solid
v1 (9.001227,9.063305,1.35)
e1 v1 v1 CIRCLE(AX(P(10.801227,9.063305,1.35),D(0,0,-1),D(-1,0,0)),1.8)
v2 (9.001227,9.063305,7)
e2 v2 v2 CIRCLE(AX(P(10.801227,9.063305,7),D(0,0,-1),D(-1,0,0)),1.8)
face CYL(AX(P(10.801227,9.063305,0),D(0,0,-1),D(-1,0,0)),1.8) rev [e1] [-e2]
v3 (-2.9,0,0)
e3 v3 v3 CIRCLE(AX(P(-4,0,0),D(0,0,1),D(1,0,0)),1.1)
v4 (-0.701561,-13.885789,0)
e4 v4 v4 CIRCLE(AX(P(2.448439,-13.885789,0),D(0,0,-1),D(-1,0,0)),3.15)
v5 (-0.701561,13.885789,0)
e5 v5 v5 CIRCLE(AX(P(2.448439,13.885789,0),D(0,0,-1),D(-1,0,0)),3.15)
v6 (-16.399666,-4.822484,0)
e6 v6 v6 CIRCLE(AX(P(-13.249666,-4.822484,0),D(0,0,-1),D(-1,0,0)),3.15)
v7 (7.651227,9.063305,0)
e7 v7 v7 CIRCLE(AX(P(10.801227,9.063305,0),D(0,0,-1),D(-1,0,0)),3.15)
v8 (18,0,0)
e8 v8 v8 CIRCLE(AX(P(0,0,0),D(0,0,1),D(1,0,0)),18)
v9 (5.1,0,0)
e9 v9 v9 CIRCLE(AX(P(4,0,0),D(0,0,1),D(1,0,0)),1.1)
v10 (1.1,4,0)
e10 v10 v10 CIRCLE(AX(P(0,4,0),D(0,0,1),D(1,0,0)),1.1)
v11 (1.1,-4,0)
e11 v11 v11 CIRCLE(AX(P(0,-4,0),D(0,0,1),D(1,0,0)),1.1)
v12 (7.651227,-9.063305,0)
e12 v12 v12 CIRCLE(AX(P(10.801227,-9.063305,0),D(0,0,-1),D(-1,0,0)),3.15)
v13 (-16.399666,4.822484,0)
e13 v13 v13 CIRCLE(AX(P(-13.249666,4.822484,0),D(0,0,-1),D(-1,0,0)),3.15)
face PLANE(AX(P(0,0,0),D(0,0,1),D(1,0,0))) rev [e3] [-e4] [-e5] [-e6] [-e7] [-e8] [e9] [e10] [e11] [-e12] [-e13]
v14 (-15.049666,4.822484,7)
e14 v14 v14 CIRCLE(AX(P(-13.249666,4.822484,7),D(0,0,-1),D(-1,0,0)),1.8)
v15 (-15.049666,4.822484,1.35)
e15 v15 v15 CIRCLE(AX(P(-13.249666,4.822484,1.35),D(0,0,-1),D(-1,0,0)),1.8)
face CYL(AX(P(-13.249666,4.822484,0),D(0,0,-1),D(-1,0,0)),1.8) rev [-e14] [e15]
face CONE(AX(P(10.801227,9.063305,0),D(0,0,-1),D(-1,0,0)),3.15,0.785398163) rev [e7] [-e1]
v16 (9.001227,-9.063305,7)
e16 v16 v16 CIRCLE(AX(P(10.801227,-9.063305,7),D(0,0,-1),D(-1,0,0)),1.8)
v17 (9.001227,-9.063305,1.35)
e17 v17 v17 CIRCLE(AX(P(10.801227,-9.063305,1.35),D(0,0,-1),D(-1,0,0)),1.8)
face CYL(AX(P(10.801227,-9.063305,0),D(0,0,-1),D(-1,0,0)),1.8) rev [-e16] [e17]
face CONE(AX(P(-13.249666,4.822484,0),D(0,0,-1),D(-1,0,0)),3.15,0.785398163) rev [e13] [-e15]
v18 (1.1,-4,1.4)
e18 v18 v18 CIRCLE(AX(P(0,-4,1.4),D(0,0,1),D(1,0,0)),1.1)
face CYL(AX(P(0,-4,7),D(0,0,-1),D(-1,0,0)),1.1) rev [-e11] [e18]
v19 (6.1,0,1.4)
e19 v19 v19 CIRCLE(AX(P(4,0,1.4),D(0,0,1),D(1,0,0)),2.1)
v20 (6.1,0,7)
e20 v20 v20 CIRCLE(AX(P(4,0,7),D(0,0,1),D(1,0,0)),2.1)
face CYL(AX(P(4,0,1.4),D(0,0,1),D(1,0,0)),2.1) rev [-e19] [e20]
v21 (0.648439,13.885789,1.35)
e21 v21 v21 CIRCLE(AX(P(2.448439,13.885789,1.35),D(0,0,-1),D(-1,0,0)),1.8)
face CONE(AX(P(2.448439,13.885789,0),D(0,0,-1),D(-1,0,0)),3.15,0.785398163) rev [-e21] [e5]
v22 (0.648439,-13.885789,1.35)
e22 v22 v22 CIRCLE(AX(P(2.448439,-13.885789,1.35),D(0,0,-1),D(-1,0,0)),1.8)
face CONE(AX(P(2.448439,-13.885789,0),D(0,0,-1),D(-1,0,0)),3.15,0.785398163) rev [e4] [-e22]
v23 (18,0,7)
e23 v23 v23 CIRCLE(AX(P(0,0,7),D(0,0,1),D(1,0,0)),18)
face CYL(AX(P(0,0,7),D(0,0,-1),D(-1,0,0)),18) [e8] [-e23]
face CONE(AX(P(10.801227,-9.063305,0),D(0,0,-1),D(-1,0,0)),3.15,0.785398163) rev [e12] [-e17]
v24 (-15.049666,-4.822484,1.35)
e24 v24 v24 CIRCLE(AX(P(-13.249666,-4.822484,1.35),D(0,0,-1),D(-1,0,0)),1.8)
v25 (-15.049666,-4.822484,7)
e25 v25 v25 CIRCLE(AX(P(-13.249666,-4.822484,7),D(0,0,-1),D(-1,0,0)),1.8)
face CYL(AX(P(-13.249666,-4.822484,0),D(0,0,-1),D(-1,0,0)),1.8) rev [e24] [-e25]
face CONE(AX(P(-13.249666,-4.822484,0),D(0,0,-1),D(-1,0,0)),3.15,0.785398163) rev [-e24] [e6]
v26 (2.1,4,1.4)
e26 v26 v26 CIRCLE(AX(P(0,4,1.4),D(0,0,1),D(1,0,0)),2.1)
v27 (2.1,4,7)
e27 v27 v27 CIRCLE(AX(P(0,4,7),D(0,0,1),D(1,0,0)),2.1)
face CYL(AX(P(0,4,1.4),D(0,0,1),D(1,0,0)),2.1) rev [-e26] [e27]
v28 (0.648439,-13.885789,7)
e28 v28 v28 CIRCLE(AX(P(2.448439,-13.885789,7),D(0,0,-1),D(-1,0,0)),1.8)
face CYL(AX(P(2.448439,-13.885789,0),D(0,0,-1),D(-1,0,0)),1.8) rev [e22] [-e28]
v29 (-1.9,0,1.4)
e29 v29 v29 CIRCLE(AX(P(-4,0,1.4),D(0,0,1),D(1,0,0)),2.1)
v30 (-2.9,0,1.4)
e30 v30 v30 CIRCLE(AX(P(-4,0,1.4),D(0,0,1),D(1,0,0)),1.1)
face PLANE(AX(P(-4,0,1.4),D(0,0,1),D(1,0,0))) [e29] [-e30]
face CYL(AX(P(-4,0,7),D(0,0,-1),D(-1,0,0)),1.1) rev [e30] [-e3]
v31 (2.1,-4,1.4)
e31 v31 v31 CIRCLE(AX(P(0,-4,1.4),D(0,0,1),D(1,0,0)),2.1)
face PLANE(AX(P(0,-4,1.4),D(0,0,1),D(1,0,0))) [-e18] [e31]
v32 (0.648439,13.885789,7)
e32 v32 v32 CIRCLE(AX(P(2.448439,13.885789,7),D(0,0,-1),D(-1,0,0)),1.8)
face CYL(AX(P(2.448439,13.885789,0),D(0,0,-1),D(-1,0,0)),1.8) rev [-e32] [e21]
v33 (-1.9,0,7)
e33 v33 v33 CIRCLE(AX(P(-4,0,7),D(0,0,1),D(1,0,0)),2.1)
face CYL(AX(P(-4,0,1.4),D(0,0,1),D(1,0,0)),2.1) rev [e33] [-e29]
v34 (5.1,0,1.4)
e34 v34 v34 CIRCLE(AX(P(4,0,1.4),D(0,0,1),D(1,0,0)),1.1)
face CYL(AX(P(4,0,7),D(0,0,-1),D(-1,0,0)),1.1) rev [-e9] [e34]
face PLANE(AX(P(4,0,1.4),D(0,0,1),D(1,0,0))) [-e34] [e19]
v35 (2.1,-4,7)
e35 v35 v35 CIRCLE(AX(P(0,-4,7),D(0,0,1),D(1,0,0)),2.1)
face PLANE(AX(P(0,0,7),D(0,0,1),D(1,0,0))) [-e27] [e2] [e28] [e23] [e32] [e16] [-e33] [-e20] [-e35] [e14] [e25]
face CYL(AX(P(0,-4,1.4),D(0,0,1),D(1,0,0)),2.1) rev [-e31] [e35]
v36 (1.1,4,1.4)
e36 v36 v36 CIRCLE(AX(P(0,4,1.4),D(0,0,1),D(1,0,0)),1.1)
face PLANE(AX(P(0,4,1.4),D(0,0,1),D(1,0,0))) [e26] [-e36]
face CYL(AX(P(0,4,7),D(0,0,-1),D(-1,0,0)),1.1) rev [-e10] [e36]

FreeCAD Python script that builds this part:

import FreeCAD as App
import Part
import Sketcher
from FreeCAD import Vector
Q = App.Units.Quantity

doc = App.newDocument("Part")
body = doc.addObject("PartDesign::Body", "Body")

# Sketch on XY plane
sketch1 = body.newObject("Sketcher::SketchObject", "Sketch")
sketch1.AttachmentSupport = (doc.getObject("XY_Plane"), [""])
sketch1.MapMode = "FlatFace"
sketch1.addGeometry(Part.Circle(Vector(0, 0, 0), Vector(0, 0, 1), 18), False)
sketch1.addGeometry(Part.Circle(Vector(-13.2, -4.8, 0), Vector(0, 0, 1), 1.6), False)
sketch1.addGeometry(Part.Circle(Vector(2.4, -13.9, 0), Vector(0, 0, 1), 1.6), False)
sketch1.addGeometry(Part.Circle(Vector(10.8, -9.1, 0), Vector(0, 0, 1), 1.6), False)
sketch1.addGeometry(Part.Circle(Vector(0, -4, 0), Vector(0, 0, 1), 1.1), False)
sketch1.addGeometry(Part.Circle(Vector(-13.2, 4.8, 0), Vector(0, 0, 1), 1.6), False)
sketch1.addGeometry(Part.Circle(Vector(-4, 0, 0), Vector(0, 0, 1), 1.1), False)
sketch1.addGeometry(Part.Circle(Vector(4, 0, 0), Vector(0, 0, 1), 1.1), False)
sketch1.addGeometry(Part.Circle(Vector(0, 4, 0), Vector(0, 0, 1), 1.1), False)
sketch1.addGeometry(Part.Circle(Vector(2.4, 13.9, 0), Vector(0, 0, 1), 1.6), False)
sketch1.addGeometry(Part.Circle(Vector(10.8, 9.1, 0), Vector(0, 0, 1), 1.6), False)
sketch1.addConstraint(Sketcher.Constraint("Coincident", 0, 3, -1, 1))
sketch1.addConstraint(Sketcher.Constraint("Equal", 1, 2))
sketch1.addConstraint(Sketcher.Constraint("Equal", 2, 3))
sketch1.addConstraint(Sketcher.Constraint("Equal", 3, 5))
sketch1.addConstraint(Sketcher.Constraint("Equal", 4, 6))
sketch1.addConstraint(Sketcher.Constraint("Equal", 6, 7))
sketch1.addConstraint(Sketcher.Constraint("Equal", 7, 8))
sketch1.addConstraint(Sketcher.Constraint("Equal", 5, 9))
sketch1.addConstraint(Sketcher.Constraint("Equal", 9, 10))
sketch1.addConstraint(Sketcher.Constraint("Symmetric", 6, 3, 7, 3, -1, 1))
sketch1.addConstraint(Sketcher.Constraint("Symmetric", 4, 3, 8, 3, -1, 1))
sketch1.addConstraint(Sketcher.Constraint("Symmetric", 1, 3, 5, 3, -1))
sketch1.addConstraint(Sketcher.Constraint("Symmetric", 2, 3, 9, 3, -1))
sketch1.addConstraint(Sketcher.Constraint("Symmetric", 3, 3, 10, 3, -1))
sketch1.addConstraint(Sketcher.Constraint("PointOnObject", 4, 3, -2))
sketch1.addConstraint(Sketcher.Constraint("PointOnObject", 6, 3, -1))
sketch1.addConstraint(Sketcher.Constraint("Diameter", 0, Q("36 mm")))
sketch1.addConstraint(Sketcher.Constraint("Diameter", 1, Q("3.2 mm")))
sketch1.addConstraint(Sketcher.Constraint("Diameter", 4, Q("2.2 mm")))
sketch1.addConstraint(Sketcher.Constraint("DistanceY", 4, 3, -1, 1, Q("4 mm")))
sketch1.addConstraint(Sketcher.Constraint("DistanceX", 6, 3, -1, 1, Q("4 mm")))
sketch1.addConstraint(Sketcher.Constraint("DistanceX", -1, 1, 2, 3, Q("2.448439 mm")))
sketch1.addConstraint(Sketcher.Constraint("DistanceY", 2, 3, -1, 1, Q("13.885789 mm")))
sketch1.addConstraint(Sketcher.Constraint("DistanceY", 3, 3, 1, 3, Q("4.240821 mm")))
sketch1.addConstraint(Sketcher.Constraint("DistanceY", 1, 3, 5, 3, Q("9.644968 mm")))
sketch1.addConstraint(Sketcher.Constraint("DistanceX", 1, 3, -1, 1, Q("13.249666 mm")))
sketch1.addConstraint(Sketcher.Constraint("DistanceX", -1, 1, 3, 3, Q("10.801227 mm")))
pad1 = body.newObject("PartDesign::Pad", "Pad")
pad1.Profile = sketch1
pad1.Length = 7

# Sketch on XY plane
sketch2 = body.newObject("Sketcher::SketchObject", "Sketch001")
sketch2.AttachmentSupport = (doc.getObject("XY_Plane"), [""])
sketch2.MapMode = "FlatFace"
sketch2.AttachmentOffset = App.Placement(Vector(0, 0, 7), App.Rotation())
sketch2.addGeometry(Part.Circle(Vector(0, 4, 0), Vector(0, 0, 1), 2.1), False)
sketch2.addGeometry(Part.Circle(Vector(0, -4, 0), Vector(0, 0, 1), 2.1), False)
sketch2.addGeometry(Part.Circle(Vector(4, 0, 0), Vector(0, 0, 1), 2.1), False)
sketch2.addGeometry(Part.Circle(Vector(-4, 0, 0), Vector(0, 0, 1), 2.1), False)
sketch2.addConstraint(Sketcher.Constraint("Equal", 0, 1))
sketch2.addConstraint(Sketcher.Constraint("Equal", 1, 2))
sketch2.addConstraint(Sketcher.Constraint("Equal", 2, 3))
sketch2.addConstraint(Sketcher.Constraint("Symmetric", 0, 3, 1, 3, -1, 1))
sketch2.addConstraint(Sketcher.Constraint("Symmetric", 2, 3, 3, 3, -1, 1))
sketch2.addConstraint(Sketcher.Constraint("PointOnObject", 0, 3, -2))
sketch2.addConstraint(Sketcher.Constraint("PointOnObject", 2, 3, -1))
sketch2.addConstraint(Sketcher.Constraint("Diameter", 0, Q("4.2 mm")))
sketch2.addConstraint(Sketcher.Constraint("DistanceY", -1, 1, 0, 3, Q("4 mm")))
sketch2.addConstraint(Sketcher.Constraint("DistanceX", -1, 1, 2, 3, Q("4 mm")))
pocket1 = body.newObject("PartDesign::Pocket", "Pocket")
pocket1.Profile = sketch2
pocket1.Length = 5.6

# Sketch on XY plane
sketch3 = body.newObject("Sketcher::SketchObject", "Sketch002")
sketch3.AttachmentSupport = (doc.getObject("XY_Plane"), [""])
sketch3.MapMode = "FlatFace"
sketch3.addGeometry(Part.Circle(Vector(2.4, 13.9, 0), Vector(0, 0, 1), 1.8), False)
sketch3.addGeometry(Part.Circle(Vector(-13.2, 4.8, 0), Vector(0, 0, 1), 1.8), False)
sketch3.addGeometry(Part.Circle(Vector(-13.2, -4.8, 0), Vector(0, 0, 1), 1.8), False)
sketch3.addGeometry(Part.Circle(Vector(2.4, -13.9, 0), Vector(0, 0, 1), 1.8), False)
sketch3.addGeometry(Part.Circle(Vector(10.8, -9.1, 0), Vector(0, 0, 1), 1.8), False)
sketch3.addGeometry(Part.Circle(Vector(10.8, 9.1, 0), Vector(0, 0, 1), 1.8), False)
sketch3.addConstraint(Sketcher.Constraint("Equal", 0, 1))
sketch3.addConstraint(Sketcher.Constraint("Equal", 1, 2))
sketch3.addConstraint(Sketcher.Constraint("Equal", 2, 3))
sketch3.addConstraint(Sketcher.Constraint("Equal", 3, 4))
sketch3.addConstraint(Sketcher.Constraint("Equal", 4, 5))
sketch3.addConstraint(Sketcher.Constraint("Symmetric", 1, 3, 2, 3, -1))
sketch3.addConstraint(Sketcher.Constraint("Symmetric", 0, 3, 3, 3, -1))
sketch3.addConstraint(Sketcher.Constraint("Symmetric", 4, 3, 5, 3, -1))
sketch3.addConstraint(Sketcher.Constraint("Diameter", 0, Q("3.6 mm")))
sketch3.addConstraint(Sketcher.Constraint("DistanceX", -1, 1, 0, 3, Q("2.448439 mm")))
sketch3.addConstraint(Sketcher.Constraint("DistanceY", -1, 1, 0, 3, Q("13.885789 mm")))
sketch3.addConstraint(Sketcher.Constraint("DistanceY", 2, 3, 1, 3, Q("9.644968 mm")))
sketch3.addConstraint(Sketcher.Constraint("DistanceY", 4, 3, 2, 3, Q("4.240821 mm")))
sketch3.addConstraint(Sketcher.Constraint("DistanceX", 1, 3, -1, 1, Q("13.249666 mm")))
sketch3.addConstraint(Sketcher.Constraint("DistanceX", -1, 1, 4, 3, Q("10.801227 mm")))
doc.recompute()
hole = body.newObject("PartDesign::Hole", "Hole")
hole.Profile = sketch3
hole.ThreadType = "None"
hole.Diameter = 3.6
hole.DepthType = "ThroughAll"
hole.HoleCutType = "Countersink"
hole.HoleCutDiameter = 6.3
hole.HoleCutCountersinkAngle = 90
hole.Reversed = True

doc.recompute()
